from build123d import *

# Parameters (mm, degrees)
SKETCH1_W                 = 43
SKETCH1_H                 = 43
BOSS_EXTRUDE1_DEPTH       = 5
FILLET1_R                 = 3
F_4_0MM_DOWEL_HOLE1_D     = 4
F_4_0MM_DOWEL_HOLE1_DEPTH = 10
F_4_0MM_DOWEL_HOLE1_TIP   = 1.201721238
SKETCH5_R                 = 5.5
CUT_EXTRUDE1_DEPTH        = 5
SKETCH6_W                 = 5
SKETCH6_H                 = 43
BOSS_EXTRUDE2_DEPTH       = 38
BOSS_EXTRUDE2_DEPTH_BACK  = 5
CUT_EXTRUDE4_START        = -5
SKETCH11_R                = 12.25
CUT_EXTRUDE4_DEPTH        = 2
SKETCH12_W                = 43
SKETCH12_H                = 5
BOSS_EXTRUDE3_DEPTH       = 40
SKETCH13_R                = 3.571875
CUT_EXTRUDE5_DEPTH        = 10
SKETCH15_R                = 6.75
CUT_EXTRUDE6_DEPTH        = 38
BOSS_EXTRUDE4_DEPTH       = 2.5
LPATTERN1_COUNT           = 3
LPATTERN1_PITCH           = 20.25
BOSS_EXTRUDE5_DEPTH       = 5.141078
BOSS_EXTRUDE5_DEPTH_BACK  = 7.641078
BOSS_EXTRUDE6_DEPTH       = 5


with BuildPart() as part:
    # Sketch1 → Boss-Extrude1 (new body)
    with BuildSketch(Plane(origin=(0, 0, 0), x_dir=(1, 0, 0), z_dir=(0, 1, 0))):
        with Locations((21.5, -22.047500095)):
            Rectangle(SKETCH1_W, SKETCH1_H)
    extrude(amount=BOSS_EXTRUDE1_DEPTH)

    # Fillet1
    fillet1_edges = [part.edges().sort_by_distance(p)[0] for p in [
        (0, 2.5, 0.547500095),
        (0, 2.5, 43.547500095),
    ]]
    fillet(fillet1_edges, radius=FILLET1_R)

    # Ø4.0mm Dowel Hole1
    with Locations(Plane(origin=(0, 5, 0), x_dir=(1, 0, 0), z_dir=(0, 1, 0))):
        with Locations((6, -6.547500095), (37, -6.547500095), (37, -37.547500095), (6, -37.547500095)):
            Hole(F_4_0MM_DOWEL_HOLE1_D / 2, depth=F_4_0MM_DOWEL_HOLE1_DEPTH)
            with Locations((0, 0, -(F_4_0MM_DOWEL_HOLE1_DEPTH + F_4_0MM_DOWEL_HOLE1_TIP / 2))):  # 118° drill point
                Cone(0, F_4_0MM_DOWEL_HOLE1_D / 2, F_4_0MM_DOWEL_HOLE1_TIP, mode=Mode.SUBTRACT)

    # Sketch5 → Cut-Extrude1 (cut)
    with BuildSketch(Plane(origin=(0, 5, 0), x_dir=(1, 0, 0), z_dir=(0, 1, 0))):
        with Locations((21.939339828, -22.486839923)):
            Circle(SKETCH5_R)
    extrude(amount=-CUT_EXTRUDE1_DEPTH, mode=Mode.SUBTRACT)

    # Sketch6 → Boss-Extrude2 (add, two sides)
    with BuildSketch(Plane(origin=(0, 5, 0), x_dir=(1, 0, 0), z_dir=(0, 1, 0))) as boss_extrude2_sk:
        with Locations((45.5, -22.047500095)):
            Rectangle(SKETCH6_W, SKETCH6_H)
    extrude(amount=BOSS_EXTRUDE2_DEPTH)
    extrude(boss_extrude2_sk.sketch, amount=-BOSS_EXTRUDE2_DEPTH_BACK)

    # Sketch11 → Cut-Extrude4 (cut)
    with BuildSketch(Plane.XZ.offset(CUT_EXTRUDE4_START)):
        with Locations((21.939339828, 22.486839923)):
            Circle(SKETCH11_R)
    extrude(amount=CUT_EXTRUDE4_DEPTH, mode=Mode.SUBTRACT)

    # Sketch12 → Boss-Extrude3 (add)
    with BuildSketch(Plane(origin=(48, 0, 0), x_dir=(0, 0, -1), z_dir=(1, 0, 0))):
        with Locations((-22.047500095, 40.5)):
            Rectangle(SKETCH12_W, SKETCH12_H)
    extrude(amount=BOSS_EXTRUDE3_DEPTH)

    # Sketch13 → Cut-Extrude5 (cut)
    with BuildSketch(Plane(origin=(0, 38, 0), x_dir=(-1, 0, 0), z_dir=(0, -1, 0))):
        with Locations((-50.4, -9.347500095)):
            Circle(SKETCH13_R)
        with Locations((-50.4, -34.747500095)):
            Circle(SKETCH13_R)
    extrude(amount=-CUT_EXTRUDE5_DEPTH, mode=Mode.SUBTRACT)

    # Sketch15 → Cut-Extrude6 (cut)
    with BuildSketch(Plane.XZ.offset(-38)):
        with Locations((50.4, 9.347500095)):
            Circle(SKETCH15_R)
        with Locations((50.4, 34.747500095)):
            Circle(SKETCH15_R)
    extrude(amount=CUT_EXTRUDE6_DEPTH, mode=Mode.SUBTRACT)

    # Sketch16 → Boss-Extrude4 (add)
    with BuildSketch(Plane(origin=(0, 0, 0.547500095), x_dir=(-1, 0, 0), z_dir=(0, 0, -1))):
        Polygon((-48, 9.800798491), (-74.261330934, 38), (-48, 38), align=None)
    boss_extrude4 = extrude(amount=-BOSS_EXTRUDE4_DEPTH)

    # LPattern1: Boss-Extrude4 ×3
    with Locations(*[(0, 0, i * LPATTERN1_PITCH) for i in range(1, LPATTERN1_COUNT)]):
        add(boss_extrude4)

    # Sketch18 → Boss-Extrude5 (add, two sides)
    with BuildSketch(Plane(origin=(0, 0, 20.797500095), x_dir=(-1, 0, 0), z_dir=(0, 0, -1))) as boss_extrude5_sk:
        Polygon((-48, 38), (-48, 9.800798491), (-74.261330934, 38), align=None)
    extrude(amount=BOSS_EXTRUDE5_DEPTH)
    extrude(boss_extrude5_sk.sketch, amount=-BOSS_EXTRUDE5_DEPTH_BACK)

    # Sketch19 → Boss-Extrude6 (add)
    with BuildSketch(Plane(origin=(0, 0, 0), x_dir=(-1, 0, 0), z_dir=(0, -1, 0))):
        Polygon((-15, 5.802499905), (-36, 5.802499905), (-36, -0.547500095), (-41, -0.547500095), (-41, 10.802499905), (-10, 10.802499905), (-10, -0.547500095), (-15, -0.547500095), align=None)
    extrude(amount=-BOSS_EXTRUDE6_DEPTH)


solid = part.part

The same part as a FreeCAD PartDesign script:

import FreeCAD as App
import Part
import Sketcher
from FreeCAD import Vector
Q = App.Units.Quantity


def edges_at(feature, points):
    """Names of the edges that pass closest to the given points."""
    edges = feature.Shape.Edges
    near = lambda p: min(range(len(edges)), key=lambda i: edges[i].distToShape(Part.Vertex(*p))[0])
    return sorted({f"Edge{near(p) + 1}" for p in points})

doc = App.newDocument("Part")
body = doc.addObject("PartDesign::Body", "Body")

# Sketch on XZ plane
sketch1 = body.newObject("Sketcher::SketchObject", "Sketch")
sketch1.AttachmentSupport = (doc.getObject("XZ_Plane"), [""])
sketch1.MapMode = "FlatFace"
sketch1.addGeometry(Part.LineSegment(Vector(0, 1, 0), Vector(0, 44, 0)), False)
sketch1.addGeometry(Part.LineSegment(Vector(0, 44, 0), Vector(43, 44, 0)), False)
sketch1.addGeometry(Part.LineSegment(Vector(43, 44, 0), Vector(43, 1, 0)), False)
sketch1.addGeometry(Part.LineSegment(Vector(43, 1, 0), Vector(0, 1, 0)), False)
sketch1.addConstraint(Sketcher.Constraint("Coincident", 0, 2, 1, 1))
sketch1.addConstraint(Sketcher.Constraint("Coincident", 1, 2, 2, 1))
sketch1.addConstraint(Sketcher.Constraint("Coincident", 2, 2, 3, 1))
sketch1.addConstraint(Sketcher.Constraint("Coincident", 3, 2, 0, 1))
sketch1.addConstraint(Sketcher.Constraint("Vertical", 0))
sketch1.addConstraint(Sketcher.Constraint("Horizontal", 1))
sketch1.addConstraint(Sketcher.Constraint("Vertical", 2))
sketch1.addConstraint(Sketcher.Constraint("Horizontal", 3))
sketch1.addConstraint(Sketcher.Constraint("PointOnObject", 0, 2, -2))
sketch1.addConstraint(Sketcher.Constraint("Equal", 3, 0))
sketch1.addConstraint(Sketcher.Constraint("DistanceX", 1, 1, 1, 2, Q("43 mm")))
sketch1.addConstraint(Sketcher.Constraint("DistanceY", -1, 1, 0, 2, Q("43.5475 mm")))
pad1 = body.newObject("PartDesign::Pad", "Pad")
pad1.Profile = sketch1
pad1.Length = 5
pad1.Reversed = True
doc.recompute()

fillet = body.newObject("PartDesign::Fillet", "Fillet")
fillet.Base = (pad1, edges_at(pad1, [(0, 2.5, 0.548), (0, 2.5, 43.548)]))
fillet.Radius = 3

# Sketch on XZ plane
sketch2 = body.newObject("Sketcher::SketchObject", "Sketch001")
sketch2.AttachmentSupport = (doc.getObject("XZ_Plane"), [""])
sketch2.MapMode = "FlatFace"
sketch2.AttachmentOffset = App.Placement(Vector(0, 0, -5), App.Rotation())
sketch2.addGeometry(Part.Circle(Vector(6, 6.5, 0), Vector(0, 0, 1), 2), False)
sketch2.addGeometry(Part.Circle(Vector(37, 6.5, 0), Vector(0, 0, 1), 2), False)
sketch2.addGeometry(Part.Circle(Vector(37, 37.5, 0), Vector(0, 0, 1), 2), False)
sketch2.addGeometry(Part.Circle(Vector(6, 37.5, 0), Vector(0, 0, 1), 2), False)
sketch2.addConstraint(Sketcher.Constraint("Equal", 0, 1))
sketch2.addConstraint(Sketcher.Constraint("Equal", 1, 2))
sketch2.addConstraint(Sketcher.Constraint("Equal", 2, 3))
sketch2.addConstraint(Sketcher.Constraint("Horizontal", 0, 3, 1, 3))
sketch2.addConstraint(Sketcher.Constraint("Horizontal", 2, 3, 3, 3))
sketch2.addConstraint(Sketcher.Constraint("Vertical", 1, 3, 2, 3))
sketch2.addConstraint(Sketcher.Constraint("Vertical", 0, 3, 3, 3))
sketch2.addConstraint(Sketcher.Constraint("Diameter", 0, Q("4 mm")))
sketch2.addConstraint(Sketcher.Constraint("DistanceX", -1, 1, 0, 3, Q("6 mm")))
sketch2.addConstraint(Sketcher.Constraint("DistanceX", -1, 1, 1, 3, Q("37 mm")))
sketch2.addConstraint(Sketcher.Constraint("DistanceY", 1, 3, 2, 3, Q("31 mm")))
sketch2.addConstraint(Sketcher.Constraint("DistanceY", -1, 1, 0, 3, Q("6.5475 mm")))
doc.recompute()
hole = body.newObject("PartDesign::Hole", "Hole")
hole.Profile = sketch2
hole.ThreadType = "None"
hole.Diameter = 4
hole.DepthType = "Dimension"
hole.Depth = 10
hole.DrillPoint = "Angled"
hole.DrillPointAngle = 118
hole.Reversed = True

# Sketch on XZ plane
sketch3 = body.newObject("Sketcher::SketchObject", "Sketch002")
sketch3.AttachmentSupport = (doc.getObject("XZ_Plane"), [""])
sketch3.MapMode = "FlatFace"
sketch3.AttachmentOffset = App.Placement(Vector(0, 0, -5), App.Rotation())
sketch3.addGeometry(Part.Circle(Vector(22, 22, 0), Vector(0, 0, 1), 6), False)
sketch3.addConstraint(Sketcher.Constraint("Diameter", 0, Q("11 mm")))
sketch3.addConstraint(Sketcher.Constraint("DistanceX", -1, 1, 0, 3, Q("21.93934 mm")))
sketch3.addConstraint(Sketcher.Constraint("DistanceY", -1, 1, 0, 3, Q("22.48684 mm")))
pocket1 = body.newObject("PartDesign::Pocket", "Pocket")
pocket1.Profile = sketch3
pocket1.Length = 5
pocket1.Reversed = True

# Sketch on XZ plane
sketch4 = body.newObject("Sketcher::SketchObject", "Sketch003")
sketch4.AttachmentSupport = (doc.getObject("XZ_Plane"), [""])
sketch4.MapMode = "FlatFace"
sketch4.AttachmentOffset = App.Placement(Vector(0, 0, -5), App.Rotation())
sketch4.addGeometry(Part.LineSegment(Vector(43, 1, 0), Vector(43, 44, 0)), False)
sketch4.addGeometry(Part.LineSegment(Vector(43, 44, 0), Vector(48, 44, 0)), False)
sketch4.addGeometry(Part.LineSegment(Vector(48, 44, 0), Vector(48, 1, 0)), False)
sketch4.addGeometry(Part.LineSegment(Vector(48, 1, 0), Vector(43, 1, 0)), False)
sketch4.addConstraint(Sketcher.Constraint("Coincident", 0, 2, 1, 1))
sketch4.addConstraint(Sketcher.Constraint("Coincident", 1, 2, 2, 1))
sketch4.addConstraint(Sketcher.Constraint("Coincident", 2, 2, 3, 1))
sketch4.addConstraint(Sketcher.Constraint("Coincident", 3, 2, 0, 1))
sketch4.addConstraint(Sketcher.Constraint("Vertical", 0))
sketch4.addConstraint(Sketcher.Constraint("Horizontal", 1))
sketch4.addConstraint(Sketcher.Constraint("Vertical", 2))
sketch4.addConstraint(Sketcher.Constraint("Horizontal", 3))
sketch4.addConstraint(Sketcher.Constraint("DistanceX", 1, 1, 1, 2, Q("5 mm")))
sketch4.addConstraint(Sketcher.Constraint("DistanceY", 0, 1, 0, 2, Q("43 mm")))
sketch4.addConstraint(Sketcher.Constraint("DistanceX", -1, 1, 0, 2, Q("43 mm")))
sketch4.addConstraint(Sketcher.Constraint("DistanceY", -1, 1, 0, 2, Q("43.5475 mm")))
pad2 = body.newObject("PartDesign::Pad", "Pad001")
pad2.Profile = sketch4
pad2.Type = "TwoLengths"
pad2.Length = 38
pad2.Length2 = 5
pad2.Reversed = True

# Sketch on XZ plane
sketch5 = body.newObject("Sketcher::SketchObject", "Sketch004")
sketch5.AttachmentSupport = (doc.getObject("XZ_Plane"), [""])
sketch5.MapMode = "FlatFace"
sketch5.AttachmentOffset = App.Placement(Vector(0, 0, -5), App.Rotation())
sketch5.addGeometry(Part.Circle(Vector(22, 22, 0), Vector(0, 0, 1), 12), False)
sketch5.addConstraint(Sketcher.Constraint("Diameter", 0, Q("24.5 mm")))
sketch5.addConstraint(Sketcher.Constraint("DistanceX", -1, 1, 0, 3, Q("21.93934 mm")))
sketch5.addConstraint(Sketcher.Constraint("DistanceY", -1, 1, 0, 3, Q("22.48684 mm")))
pocket2 = body.newObject("PartDesign::Pocket", "Pocket001")
pocket2.Profile = sketch5
pocket2.Length = 2
pocket2.Reversed = True

# Sketch on YZ plane
sketch6 = body.newObject("Sketcher::SketchObject", "Sketch005")
sketch6.AttachmentSupport = (doc.getObject("YZ_Plane"), [""])
sketch6.MapMode = "FlatFace"
sketch6.AttachmentOffset = App.Placement(Vector(0, 0, 48), App.Rotation())
sketch6.addGeometry(Part.LineSegment(Vector(43, 44, 0), Vector(38, 44, 0)), False)
sketch6.addGeometry(Part.LineSegment(Vector(38, 44, 0), Vector(38, 1, 0)), False)
sketch6.addGeometry(Part.LineSegment(Vector(38, 1, 0), Vector(43, 1, 0)), False)
sketch6.addGeometry(Part.LineSegment(Vector(43, 1, 0), Vector(43, 44, 0)), False)
sketch6.addConstraint(Sketcher.Constraint("Coincident", 0, 2, 1, 1))
sketch6.addConstraint(Sketcher.Constraint("Coincident", 1, 2, 2, 1))
sketch6.addConstraint(Sketcher.Constraint("Coincident", 2, 2, 3, 1))
sketch6.addConstraint(Sketcher.Constraint("Coincident", 3, 2, 0, 1))
sketch6.addConstraint(Sketcher.Constraint("Horizontal", 0))
sketch6.addConstraint(Sketcher.Constraint("Vertical", 1))
sketch6.addConstraint(Sketcher.Constraint("Horizontal", 2))
sketch6.addConstraint(Sketcher.Constraint("Vertical", 3))
sketch6.addConstraint(Sketcher.Constraint("DistanceX", 0, 2, 0, 1, Q("5 mm")))
sketch6.addConstraint(Sketcher.Constraint("DistanceY", 1, 2, 1, 1, Q("43 mm")))
sketch6.addConstraint(Sketcher.Constraint("DistanceX", -1, 1, 0, 2, Q("38 mm")))
sketch6.addConstraint(Sketcher.Constraint("DistanceY", -1, 1, 0, 2, Q("43.5475 mm")))
pad3 = body.newObject("PartDesign::Pad", "Pad002")
pad3.Profile = sketch6
pad3.Length = 40

# Sketch on XZ plane
sketch7 = body.newObject("Sketcher::SketchObject", "Sketch006")
sketch7.AttachmentSupport = (doc.getObject("XZ_Plane"), [""])
sketch7.MapMode = "FlatFace"
sketch7.AttachmentOffset = App.Placement(Vector(0, 0, -38), App.Rotation())
sketch7.addGeometry(Part.Circle(Vector(50.4, 9.3, 0), Vector(0, 0, 1), 3.6), False)
sketch7.addGeometry(Part.Circle(Vector(50.4, 34.7, 0), Vector(0, 0, 1), 3.6), False)
sketch7.addConstraint(Sketcher.Constraint("Equal", 0, 1))
sketch7.addConstraint(Sketcher.Constraint("Vertical", 0, 3, 1, 3))
sketch7.addConstraint(Sketcher.Constraint("DistanceX", -1, 1, 0, 3, Q("50.4 mm")))
sketch7.addConstraint(Sketcher.Constraint("DistanceY", 0, 3, 1, 3, Q("25.4 mm")))
sketch7.addConstraint(Sketcher.Constraint("Diameter", 0, Q("7.14375 mm")))
sketch7.addConstraint(Sketcher.Constraint("DistanceY", -1, 1, 0, 3, Q("9.3475 mm")))
pocket3 = body.newObject("PartDesign::Pocket", "Pocket002")
pocket3.Profile = sketch7
pocket3.Length = 10

# Sketch on XZ plane
sketch8 = body.newObject("Sketcher::SketchObject", "Sketch007")
sketch8.AttachmentSupport = (doc.getObject("XZ_Plane"), [""])
sketch8.MapMode = "FlatFace"
sketch8.AttachmentOffset = App.Placement(Vector(0, 0, -38), App.Rotation())
sketch8.addGeometry(Part.Circle(Vector(50, 9, 0), Vector(0, 0, 1), 7), False)
sketch8.addGeometry(Part.Circle(Vector(50, 35, 0), Vector(0, 0, 1), 7), False)
sketch8.addConstraint(Sketcher.Constraint("Equal", 0, 1))
sketch8.addConstraint(Sketcher.Constraint("Vertical", 0, 3, 1, 3))
sketch8.addConstraint(Sketcher.Constraint("Diameter", 0, Q("13.5 mm")))
sketch8.addConstraint(Sketcher.Constraint("DistanceX", -1, 1, 0, 3, Q("50.4 mm")))
sketch8.addConstraint(Sketcher.Constraint("DistanceY", 0, 3, 1, 3, Q("25.4 mm")))
sketch8.addConstraint(Sketcher.Constraint("DistanceY", -1, 1, 0, 3, Q("9.3475 mm")))
pocket4 = body.newObject("PartDesign::Pocket", "Pocket003")
pocket4.Profile = sketch8
pocket4.Length = 38
pocket4.Reversed = True

# Sketch on XY plane
sketch9 = body.newObject("Sketcher::SketchObject", "Sketch008")
sketch9.AttachmentSupport = (doc.getObject("XY_Plane"), [""])
sketch9.MapMode = "FlatFace"
sketch9.AttachmentOffset = App.Placement(Vector(0, 0, 0.5475), App.Rotation())
sketch9.addGeometry(Part.LineSegment(Vector(74, 38, 0), Vector(48, 10, 0)), False)
sketch9.addGeometry(Part.LineSegment(Vector(48, 10, 0), Vector(48, 38, 0)), False)
sketch9.addGeometry(Part.LineSegment(Vector(48, 38, 0), Vector(74, 38, 0)), False)
sketch9.addConstraint(Sketcher.Constraint("Coincident", 0, 2, 1, 1))
sketch9.addConstraint(Sketcher.Constraint("Coincident", 1, 2, 2, 1))
sketch9.addConstraint(Sketcher.Constraint("Coincident", 2, 2, 0, 1))
sketch9.addConstraint(Sketcher.Constraint("Vertical", 1))
sketch9.addConstraint(Sketcher.Constraint("Horizontal", 2))
sketch9.addConstraint(Sketcher.Constraint("DistanceX", -1, 1, 0, 2, Q("48 mm")))
sketch9.addConstraint(Sketcher.Constraint("DistanceY", -1, 1, 1, 2, Q("38 mm")))
sketch9.addConstraint(Sketcher.Constraint("DistanceY", 1, 1, 1, 2, Q("28.199202 mm")))
sketch9.addConstraint(Sketcher.Constraint("DistanceX", 2, 1, 2, 2, Q("26.261331 mm")))
pad4 = body.newObject("PartDesign::Pad", "Pad003")
pad4.Profile = sketch9
pad4.Length = 2.5
doc.recompute()

linearpattern = body.newObject("PartDesign::LinearPattern", "LinearPattern")
linearpattern.Originals = [pad4]
linearpattern.Direction = (doc.getObject("Z_Axis"), [""])
linearpattern.Mode = "offset"
linearpattern.Offset = 20.25
linearpattern.Occurrences = 3
body.Tip = linearpattern

# Sketch on XY plane
sketch10 = body.newObject("Sketcher::SketchObject", "Sketch009")
sketch10.AttachmentSupport = (doc.getObject("XY_Plane"), [""])
sketch10.MapMode = "FlatFace"
sketch10.AttachmentOffset = App.Placement(Vector(0, 0, 20.7975), App.Rotation())
sketch10.addGeometry(Part.LineSegment(Vector(48, 10, 0), Vector(48, 38, 0)), False)
sketch10.addGeometry(Part.LineSegment(Vector(48, 38, 0), Vector(74, 38, 0)), False)
sketch10.addGeometry(Part.LineSegment(Vector(74, 38, 0), Vector(48, 10, 0)), False)
sketch10.addConstraint(Sketcher.Constraint("Coincident", 0, 2, 1, 1))
sketch10.addConstraint(Sketcher.Constraint("Coincident", 1, 2, 2, 1))
sketch10.addConstraint(Sketcher.Constraint("Coincident", 2, 2, 0, 1))
sketch10.addConstraint(Sketcher.Constraint("Vertical", 0))
sketch10.addConstraint(Sketcher.Constraint("Horizontal", 1))
sketch10.addConstraint(Sketcher.Constraint("DistanceX", -1, 1, 0, 2, Q("48 mm")))
sketch10.addConstraint(Sketcher.Constraint("DistanceY", -1, 1, 0, 2, Q("38 mm")))
sketch10.addConstraint(Sketcher.Constraint("DistanceY", 0, 1, 0, 2, Q("28.199202 mm")))
sketch10.addConstraint(Sketcher.Constraint("DistanceX", 1, 1, 1, 2, Q("26.261331 mm")))
pad5 = body.newObject("PartDesign::Pad", "Pad004")
pad5.Profile = sketch10
pad5.Type = "TwoLengths"
pad5.Length = 5.141078
pad5.Length2 = 7.641078
pad5.Reversed = True

# Sketch on XZ plane
sketch11 = body.newObject("Sketcher::SketchObject", "Sketch010")
sketch11.AttachmentSupport = (doc.getObject("XZ_Plane"), [""])
sketch11.MapMode = "FlatFace"
sketch11.addGeometry(Part.LineSegment(Vector(36, -6, 0), Vector(15, -6, 0)), False)
sketch11.addGeometry(Part.LineSegment(Vector(15, -6, 0), Vector(15, 1, 0)), False)
sketch11.addGeometry(Part.LineSegment(Vector(15, 1, 0), Vector(10, 1, 0)), False)
sketch11.addGeometry(Part.LineSegment(Vector(10, 1, 0), Vector(10, -11, 0)), False)
sketch11.addGeometry(Part.LineSegment(Vector(10, -11, 0), Vector(41, -11, 0)), False)
sketch11.addGeometry(Part.LineSegment(Vector(41, -11, 0), Vector(41, 1, 0)), False)
sketch11.addGeometry(Part.LineSegment(Vector(41, 1, 0), Vector(36, 1, 0)), False)
sketch11.addGeometry(Part.LineSegment(Vector(36, 1, 0), Vector(36, -6, 0)), False)
sketch11.addConstraint(Sketcher.Constraint("Coincident", 0, 2, 1, 1))
sketch11.addConstraint(Sketcher.Constraint("Coincident", 1, 2, 2, 1))
sketch11.addConstraint(Sketcher.Constraint("Coincident", 2, 2, 3, 1))
sketch11.addConstraint(Sketcher.Constraint("Coincident", 3, 2, 4, 1))
sketch11.addConstraint(Sketcher.Constraint("Coincident", 4, 2, 5, 1))
sketch11.addConstraint(Sketcher.Constraint("Coincident", 5, 2, 6, 1))
sketch11.addConstraint(Sketcher.Constraint("Coincident", 6, 2, 7, 1))
sketch11.addConstraint(Sketcher.Constraint("Coincident", 7, 2, 0, 1))
sketch11.addConstraint(Sketcher.Constraint("Horizontal", 0))
sketch11.addConstraint(Sketcher.Constraint("Vertical", 1))
sketch11.addConstraint(Sketcher.Constraint("Horizontal", 2))
sketch11.addConstraint(Sketcher.Constraint("Vertical", 3))
sketch11.addConstraint(Sketcher.Constraint("Horizontal", 4))
sketch11.addConstraint(Sketcher.Constraint("Vertical", 5))
sketch11.addConstraint(Sketcher.Constraint("Horizontal", 6))
sketch11.addConstraint(Sketcher.Constraint("Vertical", 7))
sketch11.addConstraint(Sketcher.Constraint("Horizontal", 2, 2, 5, 2))
sketch11.addConstraint(Sketcher.Constraint("Equal", 2, 6))
sketch11.addConstraint(Sketcher.Constraint("DistanceX", 0, 2, 0, 1, Q("21 mm")))
sketch11.addConstraint(Sketcher.Constraint("DistanceX", 2, 2, 2, 1, Q("5 mm")))
sketch11.addConstraint(Sketcher.Constraint("DistanceX", -1, 1, 0, 2, Q("15 mm")))
sketch11.addConstraint(Sketcher.Constraint("DistanceY", 3, 2, 0, 2, Q("5 mm")))
sketch11.addConstraint(Sketcher.Constraint("DistanceY", 1, 1, 1, 2, Q("6.35 mm")))
sketch11.addConstraint(Sketcher.Constraint("DistanceY", 0, 2, -1, 1, Q("5.8025 mm")))
pad6 = body.newObject("PartDesign::Pad", "Pad005")
pad6.Profile = sketch11
pad6.Length = 5
pad6.Reversed = True

doc.recompute()
